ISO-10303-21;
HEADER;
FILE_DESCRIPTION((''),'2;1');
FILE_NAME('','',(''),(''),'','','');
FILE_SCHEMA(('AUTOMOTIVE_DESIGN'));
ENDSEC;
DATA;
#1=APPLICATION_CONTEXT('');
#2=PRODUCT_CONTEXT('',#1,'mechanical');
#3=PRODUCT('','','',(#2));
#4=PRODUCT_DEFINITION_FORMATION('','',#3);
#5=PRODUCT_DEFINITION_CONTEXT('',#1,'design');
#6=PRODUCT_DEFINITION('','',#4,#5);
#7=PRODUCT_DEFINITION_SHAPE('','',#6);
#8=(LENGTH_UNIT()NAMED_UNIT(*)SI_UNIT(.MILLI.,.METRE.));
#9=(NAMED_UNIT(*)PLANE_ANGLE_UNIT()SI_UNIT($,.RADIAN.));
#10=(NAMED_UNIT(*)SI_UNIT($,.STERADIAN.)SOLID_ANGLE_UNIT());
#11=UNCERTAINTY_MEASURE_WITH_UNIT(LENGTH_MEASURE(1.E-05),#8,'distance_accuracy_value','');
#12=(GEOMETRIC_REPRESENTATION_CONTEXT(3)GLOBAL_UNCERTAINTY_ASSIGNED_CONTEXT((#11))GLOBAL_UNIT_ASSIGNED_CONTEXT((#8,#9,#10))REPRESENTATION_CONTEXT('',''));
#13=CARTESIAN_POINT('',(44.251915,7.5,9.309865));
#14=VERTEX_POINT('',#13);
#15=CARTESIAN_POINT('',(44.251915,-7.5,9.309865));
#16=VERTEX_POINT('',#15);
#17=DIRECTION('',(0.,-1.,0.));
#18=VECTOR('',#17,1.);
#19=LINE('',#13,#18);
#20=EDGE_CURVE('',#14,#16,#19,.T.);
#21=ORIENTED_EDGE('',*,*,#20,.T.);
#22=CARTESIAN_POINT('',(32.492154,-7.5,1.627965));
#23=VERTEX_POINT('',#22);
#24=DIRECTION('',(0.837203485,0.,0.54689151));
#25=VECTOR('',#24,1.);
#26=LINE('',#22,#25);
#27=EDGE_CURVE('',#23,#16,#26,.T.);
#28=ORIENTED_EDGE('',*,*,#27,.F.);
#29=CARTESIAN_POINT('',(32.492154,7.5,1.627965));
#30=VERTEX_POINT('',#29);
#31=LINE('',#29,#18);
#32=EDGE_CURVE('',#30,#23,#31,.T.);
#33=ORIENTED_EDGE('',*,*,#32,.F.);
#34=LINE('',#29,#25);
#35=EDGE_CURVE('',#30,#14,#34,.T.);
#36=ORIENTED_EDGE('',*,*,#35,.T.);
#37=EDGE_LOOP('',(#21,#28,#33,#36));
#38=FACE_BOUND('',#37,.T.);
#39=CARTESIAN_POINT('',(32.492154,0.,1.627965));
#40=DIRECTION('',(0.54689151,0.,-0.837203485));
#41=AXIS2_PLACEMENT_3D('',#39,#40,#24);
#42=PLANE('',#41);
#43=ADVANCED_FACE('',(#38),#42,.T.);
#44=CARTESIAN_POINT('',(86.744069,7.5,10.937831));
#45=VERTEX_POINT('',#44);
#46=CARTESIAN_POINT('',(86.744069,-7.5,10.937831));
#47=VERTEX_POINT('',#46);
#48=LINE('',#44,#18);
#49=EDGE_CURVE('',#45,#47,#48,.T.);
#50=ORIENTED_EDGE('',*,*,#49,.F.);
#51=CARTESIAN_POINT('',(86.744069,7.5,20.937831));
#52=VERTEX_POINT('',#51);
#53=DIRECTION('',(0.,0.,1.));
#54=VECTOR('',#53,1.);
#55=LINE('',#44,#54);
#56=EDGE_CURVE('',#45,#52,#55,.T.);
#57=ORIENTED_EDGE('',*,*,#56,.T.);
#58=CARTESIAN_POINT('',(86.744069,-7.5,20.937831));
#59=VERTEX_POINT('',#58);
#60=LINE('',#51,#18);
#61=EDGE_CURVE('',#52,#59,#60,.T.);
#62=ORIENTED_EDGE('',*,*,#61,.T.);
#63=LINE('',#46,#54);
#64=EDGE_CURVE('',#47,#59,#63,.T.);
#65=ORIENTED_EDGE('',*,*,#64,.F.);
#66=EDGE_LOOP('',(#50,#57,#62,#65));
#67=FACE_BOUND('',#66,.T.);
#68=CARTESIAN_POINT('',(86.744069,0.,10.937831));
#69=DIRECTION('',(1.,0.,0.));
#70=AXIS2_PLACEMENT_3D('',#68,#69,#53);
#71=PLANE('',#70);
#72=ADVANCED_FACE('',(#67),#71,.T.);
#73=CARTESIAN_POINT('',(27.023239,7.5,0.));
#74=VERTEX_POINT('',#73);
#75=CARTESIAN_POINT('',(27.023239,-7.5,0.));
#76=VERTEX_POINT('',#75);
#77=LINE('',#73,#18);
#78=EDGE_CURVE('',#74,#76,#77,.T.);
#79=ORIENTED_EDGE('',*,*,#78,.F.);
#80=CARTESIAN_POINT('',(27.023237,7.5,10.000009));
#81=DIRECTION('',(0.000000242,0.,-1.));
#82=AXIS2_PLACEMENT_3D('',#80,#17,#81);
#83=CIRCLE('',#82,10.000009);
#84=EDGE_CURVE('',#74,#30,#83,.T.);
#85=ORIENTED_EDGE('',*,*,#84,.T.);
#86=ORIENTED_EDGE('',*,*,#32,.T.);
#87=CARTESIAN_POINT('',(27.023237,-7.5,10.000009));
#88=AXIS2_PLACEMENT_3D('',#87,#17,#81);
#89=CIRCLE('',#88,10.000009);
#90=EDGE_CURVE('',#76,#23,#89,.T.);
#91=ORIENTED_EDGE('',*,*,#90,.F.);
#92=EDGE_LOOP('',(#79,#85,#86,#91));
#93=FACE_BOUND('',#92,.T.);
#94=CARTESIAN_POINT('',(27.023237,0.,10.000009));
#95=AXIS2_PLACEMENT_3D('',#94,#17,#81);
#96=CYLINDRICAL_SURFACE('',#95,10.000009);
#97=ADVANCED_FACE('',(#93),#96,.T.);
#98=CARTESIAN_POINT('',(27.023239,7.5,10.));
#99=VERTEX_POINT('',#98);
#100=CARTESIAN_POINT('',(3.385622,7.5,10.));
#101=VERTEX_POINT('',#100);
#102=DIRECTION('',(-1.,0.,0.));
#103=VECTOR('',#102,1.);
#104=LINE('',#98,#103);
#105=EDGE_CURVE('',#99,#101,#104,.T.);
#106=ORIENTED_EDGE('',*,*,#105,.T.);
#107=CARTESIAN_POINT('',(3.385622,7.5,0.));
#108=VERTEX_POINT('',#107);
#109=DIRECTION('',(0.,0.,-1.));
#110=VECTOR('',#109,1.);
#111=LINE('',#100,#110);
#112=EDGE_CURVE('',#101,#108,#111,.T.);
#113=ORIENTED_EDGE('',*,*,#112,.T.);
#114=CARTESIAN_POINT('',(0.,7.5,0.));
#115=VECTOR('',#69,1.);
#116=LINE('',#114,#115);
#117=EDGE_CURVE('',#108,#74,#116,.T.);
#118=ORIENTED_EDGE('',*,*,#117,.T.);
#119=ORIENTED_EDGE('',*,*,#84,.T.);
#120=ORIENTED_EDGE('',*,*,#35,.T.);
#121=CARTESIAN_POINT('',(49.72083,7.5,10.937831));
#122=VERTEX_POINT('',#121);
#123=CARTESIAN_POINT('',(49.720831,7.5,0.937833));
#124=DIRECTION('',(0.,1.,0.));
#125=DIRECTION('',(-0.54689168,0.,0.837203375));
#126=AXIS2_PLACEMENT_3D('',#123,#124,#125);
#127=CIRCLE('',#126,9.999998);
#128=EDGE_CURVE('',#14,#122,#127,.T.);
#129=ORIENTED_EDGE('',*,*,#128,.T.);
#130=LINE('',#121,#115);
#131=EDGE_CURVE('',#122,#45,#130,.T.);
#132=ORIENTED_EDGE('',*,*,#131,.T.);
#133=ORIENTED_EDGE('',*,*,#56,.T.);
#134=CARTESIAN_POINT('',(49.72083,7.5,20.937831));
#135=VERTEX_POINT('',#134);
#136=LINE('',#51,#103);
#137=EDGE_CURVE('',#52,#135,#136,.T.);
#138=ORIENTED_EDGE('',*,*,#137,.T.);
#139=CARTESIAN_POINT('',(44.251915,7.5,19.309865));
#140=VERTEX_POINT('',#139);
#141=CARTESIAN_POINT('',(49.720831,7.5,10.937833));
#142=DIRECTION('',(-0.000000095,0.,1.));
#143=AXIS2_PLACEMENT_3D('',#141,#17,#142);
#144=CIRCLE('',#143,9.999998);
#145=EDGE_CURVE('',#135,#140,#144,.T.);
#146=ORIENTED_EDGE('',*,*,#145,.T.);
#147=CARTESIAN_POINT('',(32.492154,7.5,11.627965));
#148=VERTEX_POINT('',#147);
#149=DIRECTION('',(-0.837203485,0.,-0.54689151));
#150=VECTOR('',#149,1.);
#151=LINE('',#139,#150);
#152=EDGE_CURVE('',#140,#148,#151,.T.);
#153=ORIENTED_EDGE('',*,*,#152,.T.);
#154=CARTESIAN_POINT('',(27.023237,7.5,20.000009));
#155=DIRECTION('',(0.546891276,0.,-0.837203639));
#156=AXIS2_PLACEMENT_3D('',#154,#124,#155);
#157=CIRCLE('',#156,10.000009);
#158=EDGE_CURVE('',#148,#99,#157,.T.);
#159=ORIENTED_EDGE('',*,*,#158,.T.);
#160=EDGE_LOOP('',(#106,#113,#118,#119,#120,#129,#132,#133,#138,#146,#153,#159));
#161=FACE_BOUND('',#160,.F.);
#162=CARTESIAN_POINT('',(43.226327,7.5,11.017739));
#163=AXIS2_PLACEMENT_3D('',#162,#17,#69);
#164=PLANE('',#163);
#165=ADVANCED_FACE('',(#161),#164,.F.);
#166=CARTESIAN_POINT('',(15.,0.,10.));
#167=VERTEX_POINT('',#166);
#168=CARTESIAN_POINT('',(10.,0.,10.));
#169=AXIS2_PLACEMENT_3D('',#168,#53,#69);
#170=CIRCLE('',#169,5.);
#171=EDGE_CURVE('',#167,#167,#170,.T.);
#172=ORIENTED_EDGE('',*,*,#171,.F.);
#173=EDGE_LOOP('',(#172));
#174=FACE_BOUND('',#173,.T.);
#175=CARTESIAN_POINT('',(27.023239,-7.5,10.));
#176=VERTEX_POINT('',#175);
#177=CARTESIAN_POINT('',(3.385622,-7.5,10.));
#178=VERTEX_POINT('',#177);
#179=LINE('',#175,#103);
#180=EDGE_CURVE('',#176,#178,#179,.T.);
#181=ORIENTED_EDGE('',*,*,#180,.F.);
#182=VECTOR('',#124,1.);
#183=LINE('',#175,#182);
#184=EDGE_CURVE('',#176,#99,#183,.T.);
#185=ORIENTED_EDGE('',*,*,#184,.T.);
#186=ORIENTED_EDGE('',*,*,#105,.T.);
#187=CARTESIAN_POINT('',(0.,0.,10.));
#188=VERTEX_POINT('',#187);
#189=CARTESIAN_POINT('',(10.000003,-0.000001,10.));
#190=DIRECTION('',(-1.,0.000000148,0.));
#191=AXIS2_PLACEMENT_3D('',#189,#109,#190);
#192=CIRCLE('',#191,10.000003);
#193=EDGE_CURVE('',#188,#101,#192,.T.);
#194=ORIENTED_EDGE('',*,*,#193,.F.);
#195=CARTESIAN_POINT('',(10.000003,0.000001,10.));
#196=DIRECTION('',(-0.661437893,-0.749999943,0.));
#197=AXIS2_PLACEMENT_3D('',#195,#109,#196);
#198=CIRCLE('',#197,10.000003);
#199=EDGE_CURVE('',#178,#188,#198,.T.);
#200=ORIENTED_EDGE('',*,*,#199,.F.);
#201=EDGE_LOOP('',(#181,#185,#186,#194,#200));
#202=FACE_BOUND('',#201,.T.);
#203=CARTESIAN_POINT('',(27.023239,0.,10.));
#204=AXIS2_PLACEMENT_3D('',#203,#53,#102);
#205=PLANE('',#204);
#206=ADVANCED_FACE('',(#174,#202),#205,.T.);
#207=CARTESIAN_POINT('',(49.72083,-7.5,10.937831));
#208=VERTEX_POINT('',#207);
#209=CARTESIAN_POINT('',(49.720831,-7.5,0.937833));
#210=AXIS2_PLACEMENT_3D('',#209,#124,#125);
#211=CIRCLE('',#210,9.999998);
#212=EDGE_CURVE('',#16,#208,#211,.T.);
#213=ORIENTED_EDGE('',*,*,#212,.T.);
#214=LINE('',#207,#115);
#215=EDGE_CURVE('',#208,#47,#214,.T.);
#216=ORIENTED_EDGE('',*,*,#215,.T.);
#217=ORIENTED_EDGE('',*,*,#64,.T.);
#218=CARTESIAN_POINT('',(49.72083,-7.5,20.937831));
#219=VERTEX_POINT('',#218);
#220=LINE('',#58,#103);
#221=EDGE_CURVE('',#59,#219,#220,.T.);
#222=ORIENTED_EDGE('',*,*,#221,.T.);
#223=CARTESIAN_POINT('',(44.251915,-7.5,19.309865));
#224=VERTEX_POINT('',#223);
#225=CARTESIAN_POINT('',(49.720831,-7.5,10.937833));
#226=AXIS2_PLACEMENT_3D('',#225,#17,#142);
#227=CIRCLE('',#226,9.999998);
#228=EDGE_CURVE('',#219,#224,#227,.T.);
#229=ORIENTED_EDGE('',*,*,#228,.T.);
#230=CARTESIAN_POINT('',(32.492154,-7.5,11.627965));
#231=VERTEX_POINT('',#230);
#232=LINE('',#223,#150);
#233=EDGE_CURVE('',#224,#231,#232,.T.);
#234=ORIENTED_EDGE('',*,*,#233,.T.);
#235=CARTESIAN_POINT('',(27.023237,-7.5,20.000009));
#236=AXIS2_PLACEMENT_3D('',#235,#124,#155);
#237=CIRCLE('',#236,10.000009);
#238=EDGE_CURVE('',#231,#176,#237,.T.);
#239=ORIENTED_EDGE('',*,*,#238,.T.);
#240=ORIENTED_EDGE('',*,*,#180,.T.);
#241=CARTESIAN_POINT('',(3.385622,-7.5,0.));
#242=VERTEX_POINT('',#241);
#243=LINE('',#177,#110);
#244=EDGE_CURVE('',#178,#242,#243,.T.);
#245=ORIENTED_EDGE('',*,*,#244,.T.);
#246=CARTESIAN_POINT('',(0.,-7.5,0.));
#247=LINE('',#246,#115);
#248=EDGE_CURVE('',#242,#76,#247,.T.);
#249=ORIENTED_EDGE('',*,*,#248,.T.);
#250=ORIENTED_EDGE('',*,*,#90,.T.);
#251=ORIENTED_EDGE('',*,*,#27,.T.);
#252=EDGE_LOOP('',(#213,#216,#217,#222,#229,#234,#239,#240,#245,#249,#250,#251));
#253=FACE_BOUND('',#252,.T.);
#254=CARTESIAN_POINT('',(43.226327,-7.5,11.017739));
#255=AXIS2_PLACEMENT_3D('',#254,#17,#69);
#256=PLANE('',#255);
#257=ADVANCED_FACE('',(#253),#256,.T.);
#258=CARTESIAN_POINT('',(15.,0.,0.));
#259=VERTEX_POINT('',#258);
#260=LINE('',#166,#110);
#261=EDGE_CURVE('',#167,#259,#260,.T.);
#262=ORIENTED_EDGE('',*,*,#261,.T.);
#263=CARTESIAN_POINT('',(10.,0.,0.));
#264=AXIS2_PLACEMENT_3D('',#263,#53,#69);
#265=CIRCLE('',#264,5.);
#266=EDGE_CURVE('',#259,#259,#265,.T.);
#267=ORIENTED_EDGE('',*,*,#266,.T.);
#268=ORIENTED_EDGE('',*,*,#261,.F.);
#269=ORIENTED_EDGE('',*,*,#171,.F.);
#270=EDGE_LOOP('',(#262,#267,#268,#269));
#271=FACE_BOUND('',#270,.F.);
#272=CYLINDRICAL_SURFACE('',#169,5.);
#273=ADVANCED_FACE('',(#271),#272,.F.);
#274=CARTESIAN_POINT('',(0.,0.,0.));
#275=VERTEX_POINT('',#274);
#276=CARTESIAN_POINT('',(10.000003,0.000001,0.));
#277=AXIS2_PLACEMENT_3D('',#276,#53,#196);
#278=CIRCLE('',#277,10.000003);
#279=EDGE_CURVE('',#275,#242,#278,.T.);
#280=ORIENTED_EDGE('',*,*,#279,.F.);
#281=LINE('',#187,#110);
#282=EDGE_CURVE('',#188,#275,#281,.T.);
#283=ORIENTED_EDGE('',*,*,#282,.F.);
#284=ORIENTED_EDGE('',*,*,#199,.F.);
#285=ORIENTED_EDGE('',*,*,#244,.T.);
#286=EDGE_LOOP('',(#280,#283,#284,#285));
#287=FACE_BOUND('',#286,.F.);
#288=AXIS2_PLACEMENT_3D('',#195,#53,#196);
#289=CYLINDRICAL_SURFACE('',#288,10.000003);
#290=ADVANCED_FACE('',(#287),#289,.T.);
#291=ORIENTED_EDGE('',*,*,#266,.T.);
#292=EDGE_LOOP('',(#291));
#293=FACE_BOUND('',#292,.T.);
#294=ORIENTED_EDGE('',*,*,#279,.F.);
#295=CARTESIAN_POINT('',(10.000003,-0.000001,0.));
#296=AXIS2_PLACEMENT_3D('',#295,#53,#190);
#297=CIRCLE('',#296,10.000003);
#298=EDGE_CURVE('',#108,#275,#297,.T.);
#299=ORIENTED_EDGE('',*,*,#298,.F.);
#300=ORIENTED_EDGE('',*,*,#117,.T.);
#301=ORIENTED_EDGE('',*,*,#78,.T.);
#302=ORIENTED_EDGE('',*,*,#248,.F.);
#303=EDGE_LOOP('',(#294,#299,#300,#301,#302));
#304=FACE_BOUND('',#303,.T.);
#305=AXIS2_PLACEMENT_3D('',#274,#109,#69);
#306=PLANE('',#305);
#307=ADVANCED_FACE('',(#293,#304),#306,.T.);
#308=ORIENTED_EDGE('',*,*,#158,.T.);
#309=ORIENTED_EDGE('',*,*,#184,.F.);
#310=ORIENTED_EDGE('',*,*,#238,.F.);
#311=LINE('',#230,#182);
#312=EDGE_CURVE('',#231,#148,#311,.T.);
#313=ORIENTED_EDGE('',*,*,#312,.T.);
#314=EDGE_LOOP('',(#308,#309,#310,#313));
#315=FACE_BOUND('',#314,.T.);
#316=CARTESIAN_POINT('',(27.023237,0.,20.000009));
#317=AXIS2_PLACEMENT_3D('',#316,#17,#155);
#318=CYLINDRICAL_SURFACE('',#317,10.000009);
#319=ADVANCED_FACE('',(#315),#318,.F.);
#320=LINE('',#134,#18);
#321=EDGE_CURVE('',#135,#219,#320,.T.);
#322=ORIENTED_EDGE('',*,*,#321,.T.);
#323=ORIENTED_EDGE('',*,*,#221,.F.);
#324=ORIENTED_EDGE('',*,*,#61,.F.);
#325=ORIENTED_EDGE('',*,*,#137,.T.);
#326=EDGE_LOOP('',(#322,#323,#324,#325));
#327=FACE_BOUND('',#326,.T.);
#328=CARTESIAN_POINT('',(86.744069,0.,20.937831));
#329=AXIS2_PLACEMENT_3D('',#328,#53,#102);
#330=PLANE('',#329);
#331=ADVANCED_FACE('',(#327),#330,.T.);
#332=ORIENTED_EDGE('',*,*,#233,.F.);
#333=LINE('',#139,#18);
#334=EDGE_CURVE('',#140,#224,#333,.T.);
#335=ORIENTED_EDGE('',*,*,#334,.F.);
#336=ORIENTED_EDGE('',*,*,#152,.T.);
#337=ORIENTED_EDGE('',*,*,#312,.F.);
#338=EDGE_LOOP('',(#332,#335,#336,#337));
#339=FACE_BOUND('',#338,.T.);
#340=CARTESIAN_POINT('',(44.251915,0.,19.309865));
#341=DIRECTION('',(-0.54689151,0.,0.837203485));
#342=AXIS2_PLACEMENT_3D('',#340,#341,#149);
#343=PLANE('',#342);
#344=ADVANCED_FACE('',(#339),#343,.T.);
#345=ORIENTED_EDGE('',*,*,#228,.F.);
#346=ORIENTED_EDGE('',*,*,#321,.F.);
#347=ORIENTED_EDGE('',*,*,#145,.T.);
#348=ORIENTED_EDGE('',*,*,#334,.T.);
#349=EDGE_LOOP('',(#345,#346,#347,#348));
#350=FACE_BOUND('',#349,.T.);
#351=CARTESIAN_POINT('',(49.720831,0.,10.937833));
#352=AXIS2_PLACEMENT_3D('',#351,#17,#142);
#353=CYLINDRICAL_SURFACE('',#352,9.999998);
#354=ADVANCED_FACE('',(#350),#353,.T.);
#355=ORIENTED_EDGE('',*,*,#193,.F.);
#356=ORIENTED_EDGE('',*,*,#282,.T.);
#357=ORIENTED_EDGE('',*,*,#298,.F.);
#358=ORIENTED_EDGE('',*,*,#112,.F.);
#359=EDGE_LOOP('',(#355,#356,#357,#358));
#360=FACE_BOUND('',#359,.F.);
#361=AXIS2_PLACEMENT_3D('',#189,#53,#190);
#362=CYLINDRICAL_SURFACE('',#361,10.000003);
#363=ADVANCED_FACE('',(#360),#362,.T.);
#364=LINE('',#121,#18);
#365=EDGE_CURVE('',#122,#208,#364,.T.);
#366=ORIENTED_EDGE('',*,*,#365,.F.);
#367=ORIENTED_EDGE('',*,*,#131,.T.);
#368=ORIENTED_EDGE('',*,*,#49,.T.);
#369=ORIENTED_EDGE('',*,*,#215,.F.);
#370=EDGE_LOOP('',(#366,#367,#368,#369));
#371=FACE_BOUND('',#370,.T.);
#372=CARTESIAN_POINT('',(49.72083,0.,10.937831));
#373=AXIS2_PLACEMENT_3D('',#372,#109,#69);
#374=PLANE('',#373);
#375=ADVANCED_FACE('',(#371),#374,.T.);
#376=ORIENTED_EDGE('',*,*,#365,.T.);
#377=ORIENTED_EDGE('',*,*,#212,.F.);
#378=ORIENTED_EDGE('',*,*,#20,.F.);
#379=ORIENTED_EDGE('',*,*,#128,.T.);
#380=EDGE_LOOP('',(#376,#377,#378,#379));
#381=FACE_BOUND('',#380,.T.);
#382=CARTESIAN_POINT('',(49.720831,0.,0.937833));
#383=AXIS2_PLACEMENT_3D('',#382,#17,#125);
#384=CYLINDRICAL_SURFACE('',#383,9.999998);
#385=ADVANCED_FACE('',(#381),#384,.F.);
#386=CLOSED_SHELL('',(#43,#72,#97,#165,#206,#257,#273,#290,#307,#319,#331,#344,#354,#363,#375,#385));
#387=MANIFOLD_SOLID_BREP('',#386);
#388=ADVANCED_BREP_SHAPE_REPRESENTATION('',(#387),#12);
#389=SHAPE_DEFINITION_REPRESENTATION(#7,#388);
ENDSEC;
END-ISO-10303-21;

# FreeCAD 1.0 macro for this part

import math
import FreeCAD as App
import Part
import Sketcher
from FreeCAD import Vector

doc = App.newDocument("Part")
body = doc.addObject("PartDesign::Body", "Body")

# Sketch on XZ plane
sketch1 = doc.addObject("Sketcher::SketchObject", "Sketch")
body.addObject(sketch1)
sketch1.AttachmentSupport = (doc.XZ_Plane, [""])
sketch1.MapMode = "FlatFace"
sketch1.addGeometry(Part.LineSegment(Vector(0, 10, 0), Vector(0, 0, 0)), False)
sketch1.addGeometry(Part.LineSegment(Vector(0, 0, 0), Vector(27, 0, 0)), False)
sketch1.addGeometry(Part.ArcOfCircle(Part.Circle(Vector(27, 10, 0), Vector(0, 0, 1), 10), math.radians(-90), math.radians(-57)), False)
sketch1.addGeometry(Part.LineSegment(Vector(32, 2, 0), Vector(44, 9, 0)), False)
sketch1.addGeometry(Part.ArcOfCircle(Part.Circle(Vector(50, 1, 0), Vector(0, 0, 1), 10), math.radians(90), math.radians(123)), False)
sketch1.addGeometry(Part.LineSegment(Vector(50, 11, 0), Vector(87, 11, 0)), False)
sketch1.addGeometry(Part.LineSegment(Vector(87, 11, 0), Vector(87, 21, 0)), False)
sketch1.addGeometry(Part.LineSegment(Vector(87, 21, 0), Vector(50, 21, 0)), False)
sketch1.addGeometry(Part.ArcOfCircle(Part.Circle(Vector(50, 11, 0), Vector(0, 0, 1), 10), math.radians(90), math.radians(123)), False)
sketch1.addGeometry(Part.LineSegment(Vector(44, 19, 0), Vector(32, 12, 0)), False)
sketch1.addGeometry(Part.ArcOfCircle(Part.Circle(Vector(27, 20, 0), Vector(0, 0, 1), 10), math.radians(-90), math.radians(-57)), False)
sketch1.addGeometry(Part.LineSegment(Vector(27, 10, 0), Vector(0, 10, 0)), False)
sketch1.addConstraint(Sketcher.Constraint("Coincident", 0, 2, 1, 1))
sketch1.addConstraint(Sketcher.Constraint("Tangent", 1, 2, 2, 1))
sketch1.addConstraint(Sketcher.Constraint("Tangent", 2, 2, 3, 1))
sketch1.addConstraint(Sketcher.Constraint("Tangent", 3, 2, 4, 2))
sketch1.addConstraint(Sketcher.Constraint("Tangent", 4, 1, 5, 1))
sketch1.addConstraint(Sketcher.Constraint("Coincident", 5, 2, 6, 1))
sketch1.addConstraint(Sketcher.Constraint("Coincident", 6, 2, 7, 1))
sketch1.addConstraint(Sketcher.Constraint("Tangent", 7, 2, 8, 1))
sketch1.addConstraint(Sketcher.Constraint("Tangent", 8, 2, 9, 1))
sketch1.addConstraint(Sketcher.Constraint("Tangent", 9, 2, 10, 2))
sketch1.addConstraint(Sketcher.Constraint("Tangent", 10, 1, 11, 1))
sketch1.addConstraint(Sketcher.Constraint("Coincident", 11, 2, 0, 1))
sketch1.addConstraint(Sketcher.Constraint("Vertical", 0))
sketch1.addConstraint(Sketcher.Constraint("Horizontal", 1))
sketch1.addConstraint(Sketcher.Constraint("Horizontal", 5))
sketch1.addConstraint(Sketcher.Constraint("Vertical", 6))
sketch1.addConstraint(Sketcher.Constraint("Horizontal", 7))
sketch1.addConstraint(Sketcher.Constraint("Horizontal", 11))
sketch1.addConstraint(Sketcher.Constraint("Coincident", 0, 2, -1, 1))
sketch1.addConstraint(Sketcher.Constraint("Coincident", 4, 1, 8, 3))
sketch1.addConstraint(Sketcher.Constraint("Coincident", 10, 1, 2, 3))
sketch1.addConstraint(Sketcher.Constraint("Equal", 4, 8))
sketch1.addConstraint(Sketcher.Constraint("Equal", 2, 10))
sketch1.addConstraint(Sketcher.Constraint("Parallel", 3, 9))
sketch1.addConstraint(Sketcher.Constraint("Radius", 4, 9.999998))
sketch1.addConstraint(Sketcher.Constraint("DistanceX", 1, 1, 1, 2, 27.023239))
sketch1.addConstraint(Sketcher.Constraint("DistanceX", 5, 1, 5, 2, 37.023239))
sketch1.addConstraint(Sketcher.Constraint("DistanceY", 2, 2, 3, 2, 7.6819))
sketch1.addConstraint(Sketcher.Constraint("Distance", 3, 14.046479))
pad1 = doc.addObject("PartDesign::Pad", "Pad")
body.addObject(pad1)
pad1.Profile = sketch1
pad1.Length = 15
pad1.Midplane = True

# Sketch on XY plane
sketch2 = doc.addObject("Sketcher::SketchObject", "Sketch001")
body.addObject(sketch2)
sketch2.AttachmentSupport = (doc.XY_Plane, [""])
sketch2.MapMode = "FlatFace"
sketch2.AttachmentOffset = App.Placement(Vector(0, 0, 10), App.Rotation())
sketch2.addGeometry(Part.Circle(Vector(10, 0, 0), Vector(0, 0, 1), 5), False)
sketch2.addConstraint(Sketcher.Constraint("PointOnObject", 0, 3, -1))
sketch2.addConstraint(Sketcher.Constraint("Diameter", 0, 10.0))
sketch2.addConstraint(Sketcher.Constraint("DistanceX", -1, 1, 0, 3, 10.0))
pocket1 = doc.addObject("PartDesign::Pocket", "Pocket")
body.addObject(pocket1)
pocket1.Profile = sketch2
pocket1.Type = "ThroughAll"

# Sketch on XY plane
sketch3 = doc.addObject("Sketcher::SketchObject", "Sketch002")
body.addObject(sketch3)
sketch3.AttachmentSupport = (doc.XY_Plane, [""])
sketch3.MapMode = "FlatFace"
sketch3.AttachmentOffset = App.Placement(Vector(0, 0, 10), App.Rotation())
sketch3.addGeometry(Part.ArcOfCircle(Part.Circle(Vector(10, 0, 0), Vector(0, 0, 1), 10), math.radians(-180), math.radians(-131)), False)
sketch3.addGeometry(Part.LineSegment(Vector(0, 0, 0), Vector(0, -7.5, 0)), False)
sketch3.addGeometry(Part.LineSegment(Vector(0, -7.5, 0), Vector(3.4, -7.5, 0)), False)
sketch3.addGeometry(Part.ArcOfCircle(Part.Circle(Vector(10, 0, 0), Vector(0, 0, 1), 10), math.radians(131), math.radians(180)), False)
sketch3.addGeometry(Part.LineSegment(Vector(3.4, 7.5, 0), Vector(0, 7.5, 0)), False)
sketch3.addGeometry(Part.LineSegment(Vector(0, 7.5, 0), Vector(0, 0, 0)), False)
sketch3.addConstraint(Sketcher.Constraint("Tangent", 0, 1, 1, 1))
sketch3.addConstraint(Sketcher.Constraint("Coincident", 1, 2, 2, 1))
sketch3.addConstraint(Sketcher.Constraint("Coincident", 2, 2, 0, 2))
sketch3.addConstraint(Sketcher.Constraint("Coincident", 3, 1, 4, 1))
sketch3.addConstraint(Sketcher.Constraint("Coincident", 4, 2, 5, 1))
sketch3.addConstraint(Sketcher.Constraint("Tangent", 5, 2, 3, 2))
sketch3.addConstraint(Sketcher.Constraint("Vertical", 1))
sketch3.addConstraint(Sketcher.Constraint("Horizontal", 2))
sketch3.addConstraint(Sketcher.Constraint("Horizontal", 4))
sketch3.addConstraint(Sketcher.Constraint("Vertical", 5))
sketch3.addConstraint(Sketcher.Constraint("Coincident", 0, 1, -1, 1))
sketch3.addConstraint(Sketcher.Constraint("Coincident", 5, 2, -1, 1))
sketch3.addConstraint(Sketcher.Constraint("Equal", 0, 3))
sketch3.addConstraint(Sketcher.Constraint("Vertical", 2, 2, 3, 1))
sketch3.addConstraint(Sketcher.Constraint("DistanceY", 1, 2, 1, 1, 7.5))
sketch3.addConstraint(Sketcher.Constraint("Radius", 0, 10.000003))
pocket2 = doc.addObject("PartDesign::Pocket", "Pocket001")
body.addObject(pocket2)
pocket2.Profile = sketch3
pocket2.Type = "ThroughAll"

doc.recompute()
